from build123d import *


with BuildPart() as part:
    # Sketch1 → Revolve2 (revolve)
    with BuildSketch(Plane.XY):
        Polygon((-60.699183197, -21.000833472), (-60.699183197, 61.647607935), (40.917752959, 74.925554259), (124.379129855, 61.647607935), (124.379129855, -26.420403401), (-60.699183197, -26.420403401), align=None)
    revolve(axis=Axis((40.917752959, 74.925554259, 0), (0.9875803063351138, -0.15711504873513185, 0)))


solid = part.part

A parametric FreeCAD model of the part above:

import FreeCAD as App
import Part
import Sketcher

V = App.Vector
Q = App.Units.Quantity


def add_polygon(sketch, points):
    """Adds a closed chain of lines whose ends are joined by coincident constraints."""
    first, n = sketch.GeometryCount, len(points)
    for a, b in zip(points, points[1:] + points[:1]):
        sketch.addGeometry(Part.LineSegment(App.Vector(*a, 0), App.Vector(*b, 0)), False)
    for i in range(n):
        sketch.addConstraint(Sketcher.Constraint("Coincident", first + i, 2, first + (i + 1) % n, 1))

doc = App.newDocument("Part")
body = doc.addObject("PartDesign::Body", "Body")

sketch1 = doc.addObject("Sketcher::SketchObject", "Sketch")
body.addObject(sketch1)
sketch1.AttachmentSupport = (doc.XY_Plane, [""])
sketch1.MapMode = "FlatFace"
add_polygon(sketch1, [(-60.699183, 61.647608), (-60.699183, -26.420403), (124.37913, -26.420403), (124.37913, 61.647608), (40.917753, 74.925554)])
sketch1.addGeometry(Part.LineSegment(V(-56.130499, 90.365049, 0), V(138.044091, 59.473637, 0)), True)
sketch1.addConstraint(Sketcher.Constraint("Vertical", 0))
sketch1.addConstraint(Sketcher.Constraint("Horizontal", 1))
sketch1.addConstraint(Sketcher.Constraint("Vertical", 2))
sketch1.addConstraint(Sketcher.Constraint("Parallel", 3, 5))
sketch1.addConstraint(Sketcher.Constraint("Horizontal", 2, 2, 4, 2))
sketch1.addConstraint(Sketcher.Constraint("DistanceY", 0, 2, 0, 1, Q("88.068011 mm")))
sketch1.addConstraint(Sketcher.Constraint("DistanceX", 5, 1, -1, 1, Q("56.130499 mm")))
sketch1.addConstraint(Sketcher.Constraint("DistanceX", 1, 1, 1, 2, Q("185.078313 mm")))
sketch1.addConstraint(Sketcher.Constraint("DistanceX", -1, 1, 1, 2, Q("124.37913 mm")))
sketch1.addConstraint(Sketcher.Constraint("DistanceY", -1, 1, 5, 1, Q("90.365049 mm")))
sketch1.addConstraint(Sketcher.Constraint("DistanceX", -1, 1, 5, 2, Q("138.044091 mm")))
sketch1.addConstraint(Sketcher.Constraint("DistanceY", 4, 2, 5, 1, Q("28.717441 mm")))
sketch1.addConstraint(Sketcher.Constraint("DistanceY", 5, 2, 2, 2, Q("2.173971 mm")))
sketch1.addConstraint(Sketcher.Constraint("Distance", 3, Q("84.510977 mm")))
revolution = doc.addObject("PartDesign::Revolution", "Revolution")
body.addObject(revolution)
revolution.Profile = sketch1
revolution.ReferenceAxis = (sketch1, ["Axis0"])
revolution.Angle = 360

doc.recompute()
